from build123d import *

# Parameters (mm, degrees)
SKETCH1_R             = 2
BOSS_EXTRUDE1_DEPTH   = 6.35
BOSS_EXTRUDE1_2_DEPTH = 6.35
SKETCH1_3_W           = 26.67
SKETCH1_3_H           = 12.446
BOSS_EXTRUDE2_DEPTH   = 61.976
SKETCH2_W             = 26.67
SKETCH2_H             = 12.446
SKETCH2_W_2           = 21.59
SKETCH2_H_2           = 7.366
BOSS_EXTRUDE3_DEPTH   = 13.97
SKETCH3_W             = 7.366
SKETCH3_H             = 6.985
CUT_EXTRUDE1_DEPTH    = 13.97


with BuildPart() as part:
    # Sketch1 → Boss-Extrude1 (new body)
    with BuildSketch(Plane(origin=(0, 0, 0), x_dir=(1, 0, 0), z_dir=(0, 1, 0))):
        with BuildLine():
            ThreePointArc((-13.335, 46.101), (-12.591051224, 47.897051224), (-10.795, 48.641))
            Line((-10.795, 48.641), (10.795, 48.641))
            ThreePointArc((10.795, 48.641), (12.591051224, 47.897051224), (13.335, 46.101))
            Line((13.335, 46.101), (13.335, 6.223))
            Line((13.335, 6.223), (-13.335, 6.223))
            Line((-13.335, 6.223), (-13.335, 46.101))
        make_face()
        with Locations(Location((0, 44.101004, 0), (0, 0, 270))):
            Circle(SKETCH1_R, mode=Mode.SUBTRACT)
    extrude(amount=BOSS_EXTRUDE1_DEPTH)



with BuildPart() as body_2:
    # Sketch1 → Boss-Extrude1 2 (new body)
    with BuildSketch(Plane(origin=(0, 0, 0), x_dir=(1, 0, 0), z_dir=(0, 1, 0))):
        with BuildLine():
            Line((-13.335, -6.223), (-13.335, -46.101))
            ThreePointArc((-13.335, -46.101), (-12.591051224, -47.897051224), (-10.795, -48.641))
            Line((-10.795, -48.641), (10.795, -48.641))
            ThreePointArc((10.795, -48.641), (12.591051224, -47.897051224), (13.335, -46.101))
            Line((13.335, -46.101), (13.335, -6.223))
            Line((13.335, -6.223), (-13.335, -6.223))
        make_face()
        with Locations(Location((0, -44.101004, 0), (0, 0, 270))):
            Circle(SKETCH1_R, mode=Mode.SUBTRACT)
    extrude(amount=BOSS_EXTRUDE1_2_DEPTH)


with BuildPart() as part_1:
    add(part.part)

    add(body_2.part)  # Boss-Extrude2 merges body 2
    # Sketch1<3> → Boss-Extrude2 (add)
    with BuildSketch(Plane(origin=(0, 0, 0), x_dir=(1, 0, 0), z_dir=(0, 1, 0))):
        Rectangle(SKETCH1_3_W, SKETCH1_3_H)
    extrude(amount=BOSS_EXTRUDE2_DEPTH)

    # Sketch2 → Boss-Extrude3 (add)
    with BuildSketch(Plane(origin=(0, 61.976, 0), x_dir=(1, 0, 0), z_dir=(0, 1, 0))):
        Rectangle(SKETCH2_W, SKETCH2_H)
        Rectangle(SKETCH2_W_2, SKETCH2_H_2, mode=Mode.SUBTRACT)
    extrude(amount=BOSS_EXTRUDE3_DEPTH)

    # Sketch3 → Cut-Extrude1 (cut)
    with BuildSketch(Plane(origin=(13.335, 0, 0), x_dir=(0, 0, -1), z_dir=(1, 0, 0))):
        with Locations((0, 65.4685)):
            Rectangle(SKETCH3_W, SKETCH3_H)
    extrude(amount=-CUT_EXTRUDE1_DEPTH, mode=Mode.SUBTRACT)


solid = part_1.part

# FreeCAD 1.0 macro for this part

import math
import FreeCAD as App
import Part
import Sketcher
from FreeCAD import Vector
Q = App.Units.Quantity


def add_polygon(sketch, points):
    """Adds a closed chain of lines whose ends are joined by coincident constraints."""
    first, n = sketch.GeometryCount, len(points)
    for a, b in zip(points, points[1:] + points[:1]):
        sketch.addGeometry(Part.LineSegment(App.Vector(*a, 0), App.Vector(*b, 0)), False)
    for i in range(n):
        sketch.addConstraint(Sketcher.Constraint("Coincident", first + i, 2, first + (i + 1) % n, 1))

doc = App.newDocument("Part")
body = doc.addObject("PartDesign::Body", "Body")

# Sketch on XZ plane
sketch1 = doc.addObject("Sketcher::SketchObject", "Sketch")
body.addObject(sketch1)
sketch1.AttachmentSupport = (doc.XZ_Plane, [""])
sketch1.MapMode = "FlatFace"
sketch1.addGeometry([
    Part.ArcOfCircle(Part.Circle(Vector(-10.8, -46.1, 0), Vector(0, 0, 1), 2.5), math.radians(-180), math.radians(-90)),  # 0
    Part.LineSegment(Vector(-13.3, -46.1, 0), Vector(-13.3, -6.2, 0)),  # 1
    Part.LineSegment(Vector(-13.3, -6.2, 0), Vector(13.3, -6.2, 0)),  # 2
    Part.LineSegment(Vector(13.3, -6.2, 0), Vector(13.3, -46.1, 0)),  # 3
    Part.ArcOfCircle(Part.Circle(Vector(10.8, -46.1, 0), Vector(0, 0, 1), 2.5), math.radians(-90), math.radians(0)),  # 4
    Part.LineSegment(Vector(10.8, -48.6, 0), Vector(-10.8, -48.6, 0)),  # 5
    Part.Circle(Vector(0, -44.1, 0), Vector(0, 0, 1), 2),  # 6
], False)
sketch1.addConstraint([
    Sketcher.Constraint("Tangent", 0, 1, 1, 1),
    Sketcher.Constraint("Coincident", 1, 2, 2, 1),
    Sketcher.Constraint("Coincident", 2, 2, 3, 1),
    Sketcher.Constraint("Tangent", 3, 2, 4, 2),
    Sketcher.Constraint("Tangent", 4, 1, 5, 1),
    Sketcher.Constraint("Tangent", 5, 2, 0, 2),
    Sketcher.Constraint("Vertical", 1),
    Sketcher.Constraint("Horizontal", 2),
    Sketcher.Constraint("Vertical", 3),
    Sketcher.Constraint("Horizontal", 5),
    Sketcher.Constraint("Equal", 0, 4),
    Sketcher.Constraint("PointOnObject", 6, 3, -2),
    Sketcher.Constraint("Radius", 0, Q("0.1 in")),
    Sketcher.Constraint("DistanceX", 2, 1, 2, 2, Q("1.05 in")),
    Sketcher.Constraint("DistanceY", 1, 1, 1, 2, Q("1.57 in")),
    Sketcher.Constraint("Diameter", 6, Q("4 mm")),
    Sketcher.Constraint("DistanceX", 0, 3, -1, 1, Q("0.425 in")),
    Sketcher.Constraint("DistanceY", 0, 3, -1, 1, Q("1.815 in")),
    Sketcher.Constraint("DistanceY", 6, 3, -1, 1, Q("44.101004 mm")),
])
pad1 = doc.addObject("PartDesign::Pad", "Pad")
body.addObject(pad1)
pad1.Profile = sketch1
pad1.Length = Q("0.25 in")
pad1.Reversed = True
body2 = doc.addObject("PartDesign::Body", "Body001")

# Sketch on XZ plane
sketch2 = doc.addObject("Sketcher::SketchObject", "Sketch001")
body2.addObject(sketch2)
sketch2.AttachmentSupport = (doc.getObject("XZ_Plane001"), [""])
sketch2.MapMode = "FlatFace"
sketch2.addGeometry([
    Part.LineSegment(Vector(-13.3, 6.2, 0), Vector(-13.3, 46.1, 0)),  # 0
    Part.ArcOfCircle(Part.Circle(Vector(-10.8, 46.1, 0), Vector(0, 0, 1), 2.5), math.radians(90), math.radians(180)),  # 1
    Part.LineSegment(Vector(-10.8, 48.6, 0), Vector(10.8, 48.6, 0)),  # 2
    Part.ArcOfCircle(Part.Circle(Vector(10.8, 46.1, 0), Vector(0, 0, 1), 2.5), math.radians(0), math.radians(90)),  # 3
    Part.LineSegment(Vector(13.3, 46.1, 0), Vector(13.3, 6.2, 0)),  # 4
    Part.LineSegment(Vector(13.3, 6.2, 0), Vector(-13.3, 6.2, 0)),  # 5
    Part.Circle(Vector(0, 44.1, 0), Vector(0, 0, 1), 2),  # 6
], False)
sketch2.addConstraint([
    Sketcher.Constraint("Tangent", 0, 2, 1, 2),
    Sketcher.Constraint("Tangent", 1, 1, 2, 1),
    Sketcher.Constraint("Tangent", 2, 2, 3, 2),
    Sketcher.Constraint("Tangent", 3, 1, 4, 1),
    Sketcher.Constraint("Coincident", 4, 2, 5, 1),
    Sketcher.Constraint("Coincident", 5, 2, 0, 1),
    Sketcher.Constraint("Vertical", 0),
    Sketcher.Constraint("Horizontal", 2),
    Sketcher.Constraint("Vertical", 4),
    Sketcher.Constraint("Horizontal", 5),
    Sketcher.Constraint("Equal", 1, 3),
    Sketcher.Constraint("PointOnObject", 6, 3, -2),
    Sketcher.Constraint("Radius", 1, Q("0.1 in")),
    Sketcher.Constraint("DistanceX", 2, 1, 2, 2, Q("0.85 in")),
    Sketcher.Constraint("DistanceY", 0, 1, 0, 2, Q("1.57 in")),
    Sketcher.Constraint("Diameter", 6, Q("4 mm")),
    Sketcher.Constraint("DistanceX", 1, 3, -1, 1, Q("0.425 in")),
    Sketcher.Constraint("DistanceY", -1, 1, 1, 3, Q("1.815 in")),
    Sketcher.Constraint("DistanceY", -1, 1, 6, 3, Q("44.101004 mm")),
])
pad2 = doc.addObject("PartDesign::Pad", "Pad001")
body2.addObject(pad2)
pad2.Profile = sketch2
pad2.Length = Q("0.25 in")
pad2.Reversed = True
body.AllowCompound = True
doc.recompute()

boolean = doc.addObject("PartDesign::Boolean", "Boolean")
body.addObject(boolean)
boolean.Type = "Fuse"
boolean.addObjects([body2])

# Sketch on XZ plane
sketch3 = doc.addObject("Sketcher::SketchObject", "Sketch002")
body.addObject(sketch3)
sketch3.AttachmentSupport = (doc.XZ_Plane, [""])
sketch3.MapMode = "FlatFace"
add_polygon(sketch3, [(-13, -6), (-13, 6), (13, 6), (13, -6)])  # lines 0-3
sketch3.addConstraint([
    Sketcher.Constraint("Vertical", 0),
    Sketcher.Constraint("Horizontal", 1),
    Sketcher.Constraint("Vertical", 2),
    Sketcher.Constraint("Horizontal", 3),
    Sketcher.Constraint("Symmetric", 0, 2, 2, 2, -1, 1),
    Sketcher.Constraint("DistanceX", 1, 1, 1, 2, Q("1.05 in")),
    Sketcher.Constraint("DistanceY", 0, 1, 0, 2, Q("0.49 in")),
])
pad3 = doc.addObject("PartDesign::Pad", "Pad002")
body.addObject(pad3)
pad3.Profile = sketch3
pad3.Length = Q("2.44 in")
pad3.Reversed = True

# Sketch on XZ plane
sketch4 = doc.addObject("Sketcher::SketchObject", "Sketch003")
body.addObject(sketch4)
sketch4.AttachmentSupport = (doc.XZ_Plane, [""])
sketch4.MapMode = "FlatFace"
sketch4.AttachmentOffset = App.Placement(Vector(0, 0, -2.44 * 25.4), App.Rotation())
add_polygon(sketch4, [(-13, -6), (-13, 6), (13, 6), (13, -6)])  # lines 0-3
add_polygon(sketch4, [(11, 4), (-11, 4), (-11, -4), (11, -4)])  # lines 4-7
sketch4.addConstraint([
    Sketcher.Constraint("Vertical", 0),
    Sketcher.Constraint("Horizontal", 1),
    Sketcher.Constraint("Vertical", 2),
    Sketcher.Constraint("Horizontal", 3),
    Sketcher.Constraint("Horizontal", 4),
    Sketcher.Constraint("Vertical", 5),
    Sketcher.Constraint("Horizontal", 6),
    Sketcher.Constraint("Vertical", 7),
    Sketcher.Constraint("Symmetric", 0, 2, 2, 2, -1, 1),
    Sketcher.Constraint("Symmetric", 4, 2, 6, 2, -1, 1),
    Sketcher.Constraint("DistanceX", 1, 1, 1, 2, Q("1.05 in")),
    Sketcher.Constraint("DistanceX", 4, 2, 4, 1, Q("0.85 in")),
    Sketcher.Constraint("DistanceY", 0, 1, 0, 2, Q("0.49 in")),
    Sketcher.Constraint("DistanceY", 5, 2, 5, 1, Q("0.29 in")),
])
pad4 = doc.addObject("PartDesign::Pad", "Pad003")
body.addObject(pad4)
pad4.Profile = sketch4
pad4.Length = Q("0.55 in")
pad4.Reversed = True

# Sketch on YZ plane
sketch5 = doc.addObject("Sketcher::SketchObject", "Sketch004")
body.addObject(sketch5)
sketch5.AttachmentSupport = (doc.YZ_Plane, [""])
sketch5.MapMode = "FlatFace"
sketch5.AttachmentOffset = App.Placement(Vector(0, 0, 0.525 * 25.4), App.Rotation())
add_polygon(sketch5, [(69, 4), (62, 4), (62, -4), (69, -4)])  # lines 0-3
sketch5.addConstraint([
    Sketcher.Constraint("Horizontal", 0),
    Sketcher.Constraint("Vertical", 1),
    Sketcher.Constraint("Horizontal", 2),
    Sketcher.Constraint("Vertical", 3),
    Sketcher.Constraint("DistanceY", 1, 2, 1, 1, Q("0.29 in")),
    Sketcher.Constraint("DistanceX", 0, 2, 0, 1, Q("0.275 in")),
    Sketcher.Constraint("DistanceX", -1, 1, 0, 2, Q("2.44 in")),
    Sketcher.Constraint("DistanceY", -1, 1, 0, 2, Q("0.145 in")),
])
pocket1 = doc.addObject("PartDesign::Pocket", "Pocket")
body.addObject(pocket1)
pocket1.Profile = sketch5
pocket1.Length = Q("0.55 in")

doc.recompute()
